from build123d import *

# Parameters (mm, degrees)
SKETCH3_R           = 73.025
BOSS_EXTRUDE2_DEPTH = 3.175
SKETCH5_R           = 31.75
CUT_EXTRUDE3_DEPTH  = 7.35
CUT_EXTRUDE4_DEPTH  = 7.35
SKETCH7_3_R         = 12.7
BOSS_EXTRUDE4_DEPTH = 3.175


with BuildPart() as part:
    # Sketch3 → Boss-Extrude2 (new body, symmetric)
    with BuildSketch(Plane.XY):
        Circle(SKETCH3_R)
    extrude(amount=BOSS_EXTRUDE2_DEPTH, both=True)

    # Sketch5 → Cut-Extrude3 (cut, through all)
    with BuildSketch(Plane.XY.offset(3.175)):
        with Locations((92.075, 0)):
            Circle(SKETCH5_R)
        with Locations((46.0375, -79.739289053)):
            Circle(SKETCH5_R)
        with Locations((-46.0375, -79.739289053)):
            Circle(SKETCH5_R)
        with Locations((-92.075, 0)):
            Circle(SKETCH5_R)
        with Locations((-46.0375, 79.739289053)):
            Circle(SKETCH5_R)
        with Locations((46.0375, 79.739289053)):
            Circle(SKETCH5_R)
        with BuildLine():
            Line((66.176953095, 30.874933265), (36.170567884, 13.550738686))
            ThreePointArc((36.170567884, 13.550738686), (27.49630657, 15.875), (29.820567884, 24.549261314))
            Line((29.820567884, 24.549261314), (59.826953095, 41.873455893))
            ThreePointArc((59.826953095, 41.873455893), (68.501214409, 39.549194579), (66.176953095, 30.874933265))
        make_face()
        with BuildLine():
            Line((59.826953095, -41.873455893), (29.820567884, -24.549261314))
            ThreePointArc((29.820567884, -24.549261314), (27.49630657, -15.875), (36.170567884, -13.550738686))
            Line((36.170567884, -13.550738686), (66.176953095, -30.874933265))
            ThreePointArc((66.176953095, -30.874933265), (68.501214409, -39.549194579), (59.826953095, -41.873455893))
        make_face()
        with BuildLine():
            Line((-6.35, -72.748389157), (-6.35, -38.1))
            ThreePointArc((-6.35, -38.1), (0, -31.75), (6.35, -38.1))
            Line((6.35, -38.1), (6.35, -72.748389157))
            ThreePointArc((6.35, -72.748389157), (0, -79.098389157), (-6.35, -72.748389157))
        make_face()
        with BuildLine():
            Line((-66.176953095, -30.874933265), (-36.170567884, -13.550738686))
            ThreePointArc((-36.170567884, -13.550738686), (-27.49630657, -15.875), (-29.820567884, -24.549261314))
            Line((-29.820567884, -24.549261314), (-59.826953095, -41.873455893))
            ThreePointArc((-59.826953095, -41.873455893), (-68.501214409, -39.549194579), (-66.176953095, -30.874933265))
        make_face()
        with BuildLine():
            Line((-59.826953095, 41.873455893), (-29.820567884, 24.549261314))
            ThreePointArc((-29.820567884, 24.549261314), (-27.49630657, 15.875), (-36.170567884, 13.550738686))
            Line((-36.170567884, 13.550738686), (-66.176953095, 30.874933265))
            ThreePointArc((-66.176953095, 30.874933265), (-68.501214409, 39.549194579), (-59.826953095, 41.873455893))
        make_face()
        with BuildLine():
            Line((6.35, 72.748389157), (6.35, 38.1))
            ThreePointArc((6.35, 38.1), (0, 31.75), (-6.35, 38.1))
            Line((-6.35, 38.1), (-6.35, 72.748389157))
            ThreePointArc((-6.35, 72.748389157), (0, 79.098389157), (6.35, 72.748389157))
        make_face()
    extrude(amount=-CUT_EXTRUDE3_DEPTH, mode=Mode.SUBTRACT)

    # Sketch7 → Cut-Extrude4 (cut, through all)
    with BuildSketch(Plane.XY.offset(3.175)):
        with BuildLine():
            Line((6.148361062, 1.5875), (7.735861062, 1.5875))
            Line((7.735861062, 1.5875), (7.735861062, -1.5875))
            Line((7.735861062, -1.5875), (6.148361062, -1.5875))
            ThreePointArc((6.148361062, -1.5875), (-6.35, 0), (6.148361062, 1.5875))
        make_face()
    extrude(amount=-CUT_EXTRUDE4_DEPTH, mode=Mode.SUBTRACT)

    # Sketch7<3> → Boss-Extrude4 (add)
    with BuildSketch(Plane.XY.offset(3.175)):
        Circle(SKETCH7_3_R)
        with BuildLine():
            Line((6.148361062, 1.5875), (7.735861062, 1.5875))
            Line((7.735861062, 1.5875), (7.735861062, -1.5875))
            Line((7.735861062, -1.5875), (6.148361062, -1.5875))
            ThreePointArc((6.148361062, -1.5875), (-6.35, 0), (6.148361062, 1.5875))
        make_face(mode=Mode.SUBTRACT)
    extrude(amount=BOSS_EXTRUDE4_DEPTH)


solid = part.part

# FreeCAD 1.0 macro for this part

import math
import FreeCAD as App
import Part
import Sketcher
Q = App.Units.Quantity

doc = App.newDocument("Part")
params = doc.addObject("Spreadsheet::Sheet", "Params")
for row, (alias, value) in enumerate([
    ("sketch1_diameter", "5.75 in"),
    ("pad1_length", "0.25 in"),
    ("sketch2_diameter", "2.5 in"),
    ("sketch2_radius", "0.25 in"),
    ("sketch3_radius", "0.25 in"),
    ("sketch3_width", "0.0625 in"),
    ("sketch3_height", "0.125 in"),
    ("sketch4_diameter", "1 in"),
    ("sketch4_radius", "0.25 in"),
    ("sketch4_width", "0.0625 in"),
    ("sketch4_height", "0.125 in"),
    ("pad2_length", "0.125 in"),
], start=1):
    params.set(f"A{row}", alias)
    params.set(f"B{row}", "=" + value)
    params.setAlias(f"B{row}", alias)

body = doc.addObject("PartDesign::Body", "Body")

# Sketch on XY plane
sketch1 = doc.addObject("Sketcher::SketchObject", "Sketch")
body.addObject(sketch1)
sketch1.AttachmentSupport = (doc.XY_Plane, [""])
sketch1.MapMode = "FlatFace"
sketch1.addGeometry(Part.Circle(App.Vector(0, 0, 0), App.Vector(0, 0, 1), 73), False)
sketch1.addConstraint(Sketcher.Constraint("Coincident", 0, 3, -1, 1))
sketch1.addConstraint(Sketcher.Constraint("Diameter", 0, Q("5.75 in")))
sketch1.setExpression("Constraints[1]", "Params.sketch1_diameter")
pad1 = doc.addObject("PartDesign::Pad", "Pad")
body.addObject(pad1)
pad1.Profile = sketch1
pad1.setExpression("Length", "Params.pad1_length")
pad1.Midplane = True

# Sketch on XY plane
sketch2 = doc.addObject("Sketcher::SketchObject", "Sketch001")
body.addObject(sketch2)
sketch2.AttachmentSupport = (doc.XY_Plane, [""])
sketch2.MapMode = "FlatFace"
sketch2.AttachmentOffset = App.Placement(App.Vector(0, 0, 0.125 * 25.4), App.Rotation())
sketch2.addGeometry(Part.Circle(App.Vector(92, 0, 0), App.Vector(0, 0, 1), 32), False)
sketch2.addGeometry(Part.Circle(App.Vector(46, -80, 0), App.Vector(0, 0, 1), 32), False)
sketch2.addGeometry(Part.Circle(App.Vector(-46, -80, 0), App.Vector(0, 0, 1), 32), False)
sketch2.addGeometry(Part.Circle(App.Vector(-92, 0, 0), App.Vector(0, 0, 1), 32), False)
sketch2.addGeometry(Part.Circle(App.Vector(-46, 80, 0), App.Vector(0, 0, 1), 32), False)
sketch2.addGeometry(Part.Circle(App.Vector(46, 80, 0), App.Vector(0, 0, 1), 32), False)
sketch2.addGeometry(Part.LineSegment(App.Vector(36, 14, 0), App.Vector(66, 31, 0)), False)
sketch2.addGeometry(Part.ArcOfCircle(Part.Circle(App.Vector(63, 36, 0), App.Vector(0, 0, 1), 6), math.radians(-60), math.radians(120)), False)
sketch2.addGeometry(Part.LineSegment(App.Vector(60, 42, 0), App.Vector(30, 25, 0)), False)
sketch2.addGeometry(Part.ArcOfCircle(Part.Circle(App.Vector(33, 19, 0), App.Vector(0, 0, 1), 6), math.radians(120), math.radians(300)), False)
sketch2.addGeometry(Part.LineSegment(App.Vector(30, -25, 0), App.Vector(60, -42, 0)), False)
sketch2.addGeometry(Part.ArcOfCircle(Part.Circle(App.Vector(63, -36, 0), App.Vector(0, 0, 1), 6), math.radians(-120), math.radians(60)), False)
sketch2.addGeometry(Part.LineSegment(App.Vector(66, -31, 0), App.Vector(36, -14, 0)), False)
sketch2.addGeometry(Part.ArcOfCircle(Part.Circle(App.Vector(33, -19, 0), App.Vector(0, 0, 1), 6), math.radians(60), math.radians(240)), False)
sketch2.addGeometry(Part.LineSegment(App.Vector(-6, -38, 0), App.Vector(-6, -73, 0)), False)
sketch2.addGeometry(Part.ArcOfCircle(Part.Circle(App.Vector(0, -73, 0), App.Vector(0, 0, 1), 6), math.radians(180), math.radians(360)), False)
sketch2.addGeometry(Part.LineSegment(App.Vector(6, -73, 0), App.Vector(6, -38, 0)), False)
sketch2.addGeometry(Part.ArcOfCircle(Part.Circle(App.Vector(0, -38, 0), App.Vector(0, 0, 1), 6), math.radians(0), math.radians(180)), False)
sketch2.addGeometry(Part.LineSegment(App.Vector(-36, -14, 0), App.Vector(-66, -31, 0)), False)
sketch2.addGeometry(Part.ArcOfCircle(Part.Circle(App.Vector(-63, -36, 0), App.Vector(0, 0, 1), 6), math.radians(120), math.radians(300)), False)
sketch2.addGeometry(Part.LineSegment(App.Vector(-60, -42, 0), App.Vector(-30, -25, 0)), False)
sketch2.addGeometry(Part.ArcOfCircle(Part.Circle(App.Vector(-33, -19, 0), App.Vector(0, 0, 1), 6), math.radians(-60), math.radians(120)), False)
sketch2.addGeometry(Part.LineSegment(App.Vector(-30, 25, 0), App.Vector(-60, 42, 0)), False)
sketch2.addGeometry(Part.ArcOfCircle(Part.Circle(App.Vector(-63, 36, 0), App.Vector(0, 0, 1), 6), math.radians(60), math.radians(240)), False)
sketch2.addGeometry(Part.LineSegment(App.Vector(-66, 31, 0), App.Vector(-36, 14, 0)), False)
sketch2.addGeometry(Part.ArcOfCircle(Part.Circle(App.Vector(-33, 19, 0), App.Vector(0, 0, 1), 6), math.radians(-120), math.radians(60)), False)
sketch2.addGeometry(Part.LineSegment(App.Vector(6, 38, 0), App.Vector(6, 73, 0)), False)
sketch2.addGeometry(Part.ArcOfCircle(Part.Circle(App.Vector(0, 73, 0), App.Vector(0, 0, 1), 6), math.radians(0), math.radians(180)), False)
sketch2.addGeometry(Part.LineSegment(App.Vector(-6, 73, 0), App.Vector(-6, 38, 0)), False)
sketch2.addGeometry(Part.ArcOfCircle(Part.Circle(App.Vector(0, 38, 0), App.Vector(0, 0, 1), 6), math.radians(180), math.radians(360)), False)
sketch2.addConstraint(Sketcher.Constraint("Tangent", 6, 2, 7, 1))
sketch2.addConstraint(Sketcher.Constraint("Tangent", 7, 2, 8, 1))
sketch2.addConstraint(Sketcher.Constraint("Tangent", 8, 2, 9, 1))
sketch2.addConstraint(Sketcher.Constraint("Tangent", 9, 2, 6, 1))
sketch2.addConstraint(Sketcher.Constraint("Tangent", 10, 2, 11, 1))
sketch2.addConstraint(Sketcher.Constraint("Tangent", 11, 2, 12, 1))
sketch2.addConstraint(Sketcher.Constraint("Tangent", 12, 2, 13, 1))
sketch2.addConstraint(Sketcher.Constraint("Tangent", 13, 2, 10, 1))
sketch2.addConstraint(Sketcher.Constraint("Tangent", 14, 2, 15, 1))
sketch2.addConstraint(Sketcher.Constraint("Tangent", 15, 2, 16, 1))
sketch2.addConstraint(Sketcher.Constraint("Tangent", 16, 2, 17, 1))
sketch2.addConstraint(Sketcher.Constraint("Tangent", 17, 2, 14, 1))
sketch2.addConstraint(Sketcher.Constraint("Tangent", 18, 2, 19, 1))
sketch2.addConstraint(Sketcher.Constraint("Tangent", 19, 2, 20, 1))
sketch2.addConstraint(Sketcher.Constraint("Tangent", 20, 2, 21, 1))
sketch2.addConstraint(Sketcher.Constraint("Tangent", 21, 2, 18, 1))
sketch2.addConstraint(Sketcher.Constraint("Tangent", 22, 2, 23, 1))
sketch2.addConstraint(Sketcher.Constraint("Tangent", 23, 2, 24, 1))
sketch2.addConstraint(Sketcher.Constraint("Tangent", 24, 2, 25, 1))
sketch2.addConstraint(Sketcher.Constraint("Tangent", 25, 2, 22, 1))
sketch2.addConstraint(Sketcher.Constraint("Tangent", 26, 2, 27, 1))
sketch2.addConstraint(Sketcher.Constraint("Tangent", 27, 2, 28, 1))
sketch2.addConstraint(Sketcher.Constraint("Tangent", 28, 2, 29, 1))
sketch2.addConstraint(Sketcher.Constraint("Tangent", 29, 2, 26, 1))
sketch2.addConstraint(Sketcher.Constraint("Vertical", 14))
sketch2.addConstraint(Sketcher.Constraint("Vertical", 16))
sketch2.addConstraint(Sketcher.Constraint("Vertical", 26))
sketch2.addConstraint(Sketcher.Constraint("Vertical", 28))
sketch2.addConstraint(Sketcher.Constraint("Equal", 0, 1))
sketch2.addConstraint(Sketcher.Constraint("Equal", 1, 2))
sketch2.addConstraint(Sketcher.Constraint("Equal", 2, 3))
sketch2.addConstraint(Sketcher.Constraint("Equal", 3, 4))
sketch2.addConstraint(Sketcher.Constraint("Equal", 4, 5))
sketch2.addConstraint(Sketcher.Constraint("Equal", 7, 9))
sketch2.addConstraint(Sketcher.Constraint("Equal", 9, 11))
sketch2.addConstraint(Sketcher.Constraint("Equal", 11, 13))
sketch2.addConstraint(Sketcher.Constraint("Equal", 13, 15))
sketch2.addConstraint(Sketcher.Constraint("Equal", 17, 19))
sketch2.addConstraint(Sketcher.Constraint("Equal", 19, 21))
sketch2.addConstraint(Sketcher.Constraint("Equal", 21, 23))
sketch2.addConstraint(Sketcher.Constraint("Equal", 23, 25))
sketch2.addConstraint(Sketcher.Constraint("Equal", 25, 27))
sketch2.addConstraint(Sketcher.Constraint("Symmetric", 0, 3, 3, 3, -1, 1))
sketch2.addConstraint(Sketcher.Constraint("Symmetric", 1, 3, 4, 3, -1, 1))
sketch2.addConstraint(Sketcher.Constraint("Symmetric", 2, 3, 5, 3, -1, 1))
sketch2.addConstraint(Sketcher.Constraint("Symmetric", 7, 3, 19, 3, -1, 1))
sketch2.addConstraint(Sketcher.Constraint("Symmetric", 9, 3, 21, 3, -1, 1))
sketch2.addConstraint(Sketcher.Constraint("Symmetric", 11, 3, 23, 3, -1, 1))
sketch2.addConstraint(Sketcher.Constraint("Symmetric", 13, 3, 25, 3, -1, 1))
sketch2.addConstraint(Sketcher.Constraint("Symmetric", 15, 3, 27, 3, -1, 1))
sketch2.addConstraint(Sketcher.Constraint("Symmetric", 1, 3, 2, 3, -2))
sketch2.addConstraint(Sketcher.Constraint("Symmetric", 11, 3, 19, 3, -2))
sketch2.addConstraint(Sketcher.Constraint("Symmetric", 13, 3, 21, 3, -2))
sketch2.addConstraint(Sketcher.Constraint("Symmetric", 17, 3, 29, 3, -1))
sketch2.addConstraint(Sketcher.Constraint("PointOnObject", 0, 3, -1))
sketch2.addConstraint(Sketcher.Constraint("Diameter", 0, Q("2.5 in")))
sketch2.addConstraint(Sketcher.Constraint("Radius", 7, Q("0.25 in")))
sketch2.addConstraint(Sketcher.Constraint("Angle", 6, Q("30 deg")))
sketch2.addConstraint(Sketcher.Constraint("DistanceY", 17, 3, -1, 1, Q("1.5 in")))
sketch2.addConstraint(Sketcher.Constraint("DistanceY", 13, 3, 9, 3, Q("1.5 in")))
sketch2.addConstraint(Sketcher.Constraint("DistanceX", 3, 3, 0, 3, Q("7.25 in")))
sketch2.addConstraint(Sketcher.Constraint("DistanceX", -1, 1, 1, 3, Q("1.8125 in")))
sketch2.addConstraint(Sketcher.Constraint("DistanceY", 14, 2, 14, 1, Q("34.648389 mm")))
sketch2.addConstraint(Sketcher.Constraint("DistanceY", 1, 3, 15, 3, Q("6.9909 mm")))
sketch2.addConstraint(Sketcher.Constraint("Distance", 6, Q("34.648389 mm")))
sketch2.addConstraint(Sketcher.Constraint("DistanceX", 19, 3, 13, 3, Q("95.997521 mm")))
sketch2.setExpression("Constraints[55]", "Params.sketch2_diameter")
sketch2.setExpression("Constraints[56]", "Params.sketch2_radius")
pocket1 = doc.addObject("PartDesign::Pocket", "Pocket")
body.addObject(pocket1)
pocket1.Profile = sketch2
pocket1.Type = "ThroughAll"

# Sketch on XY plane
sketch3 = doc.addObject("Sketcher::SketchObject", "Sketch002")
body.addObject(sketch3)
sketch3.AttachmentSupport = (doc.XY_Plane, [""])
sketch3.MapMode = "FlatFace"
sketch3.AttachmentOffset = App.Placement(App.Vector(0, 0, 0.125 * 25.4), App.Rotation())
sketch3.addGeometry(Part.LineSegment(App.Vector(7.7, 1.6, 0), App.Vector(6.1, 1.6, 0)), False)
sketch3.addGeometry(Part.ArcOfCircle(Part.Circle(App.Vector(0, 0, 0), App.Vector(0, 0, 1), 6.3), math.radians(14), math.radians(346)), False)
sketch3.addGeometry(Part.LineSegment(App.Vector(6.1, -1.6, 0), App.Vector(7.7, -1.6, 0)), False)
sketch3.addGeometry(Part.LineSegment(App.Vector(7.7, -1.6, 0), App.Vector(7.7, 1.6, 0)), False)
sketch3.addConstraint(Sketcher.Constraint("Coincident", 0, 2, 1, 1))
sketch3.addConstraint(Sketcher.Constraint("Coincident", 1, 2, 2, 1))
sketch3.addConstraint(Sketcher.Constraint("Coincident", 2, 2, 3, 1))
sketch3.addConstraint(Sketcher.Constraint("Coincident", 3, 2, 0, 1))
sketch3.addConstraint(Sketcher.Constraint("Horizontal", 0))
sketch3.addConstraint(Sketcher.Constraint("Horizontal", 2))
sketch3.addConstraint(Sketcher.Constraint("Vertical", 3))
sketch3.addConstraint(Sketcher.Constraint("Coincident", 1, 3, -1, 1))
sketch3.addConstraint(Sketcher.Constraint("Vertical", 0, 2, 1, 2))
sketch3.addConstraint(Sketcher.Constraint("Radius", 1, Q("0.25 in")))
sketch3.addConstraint(Sketcher.Constraint("DistanceX", 0, 2, 0, 1, Q("0.0625 in")))
sketch3.addConstraint(Sketcher.Constraint("DistanceY", 3, 1, 3, 2, Q("0.125 in")))
sketch3.setExpression("Constraints[9]", "Params.sketch3_radius")
sketch3.setExpression("Constraints[10]", "Params.sketch3_width")
sketch3.setExpression("Constraints[11]", "Params.sketch3_height")
pocket2 = doc.addObject("PartDesign::Pocket", "Pocket001")
body.addObject(pocket2)
pocket2.Profile = sketch3
pocket2.Type = "ThroughAll"

# Sketch on XY plane
sketch4 = doc.addObject("Sketcher::SketchObject", "Sketch003")
body.addObject(sketch4)
sketch4.AttachmentSupport = (doc.XY_Plane, [""])
sketch4.MapMode = "FlatFace"
sketch4.AttachmentOffset = App.Placement(App.Vector(0, 0, 0.125 * 25.4), App.Rotation())
sketch4.addGeometry(Part.Circle(App.Vector(0, 0, 0), App.Vector(0, 0, 1), 12.7), False)
sketch4.addGeometry(Part.ArcOfCircle(Part.Circle(App.Vector(0, 0, 0), App.Vector(0, 0, 1), 6.3), math.radians(14), math.radians(346)), False)
sketch4.addGeometry(Part.LineSegment(App.Vector(6.1, 1.6, 0), App.Vector(7.7, 1.6, 0)), False)
sketch4.addGeometry(Part.LineSegment(App.Vector(7.7, 1.6, 0), App.Vector(7.7, -1.6, 0)), False)
sketch4.addGeometry(Part.LineSegment(App.Vector(7.7, -1.6, 0), App.Vector(6.1, -1.6, 0)), False)
sketch4.addConstraint(Sketcher.Constraint("Coincident", 1, 1, 2, 1))
sketch4.addConstraint(Sketcher.Constraint("Coincident", 2, 2, 3, 1))
sketch4.addConstraint(Sketcher.Constraint("Coincident", 3, 2, 4, 1))
sketch4.addConstraint(Sketcher.Constraint("Coincident", 4, 2, 1, 2))
sketch4.addConstraint(Sketcher.Constraint("Horizontal", 2))
sketch4.addConstraint(Sketcher.Constraint("Vertical", 3))
sketch4.addConstraint(Sketcher.Constraint("Horizontal", 4))
sketch4.addConstraint(Sketcher.Constraint("Coincident", 0, 3, -1, 1))
sketch4.addConstraint(Sketcher.Constraint("Coincident", 1, 3, -1, 1))
sketch4.addConstraint(Sketcher.Constraint("Vertical", 1, 1, 4, 2))
sketch4.addConstraint(Sketcher.Constraint("Diameter", 0, Q("1 in")))
sketch4.addConstraint(Sketcher.Constraint("Radius", 1, Q("0.25 in")))
sketch4.addConstraint(Sketcher.Constraint("DistanceX", 2, 1, 2, 2, Q("0.0625 in")))
sketch4.addConstraint(Sketcher.Constraint("DistanceY", 3, 2, 3, 1, Q("0.125 in")))
sketch4.setExpression("Constraints[10]", "Params.sketch4_diameter")
sketch4.setExpression("Constraints[11]", "Params.sketch4_radius")
sketch4.setExpression("Constraints[12]", "Params.sketch4_width")
sketch4.setExpression("Constraints[13]", "Params.sketch4_height")
pad2 = doc.addObject("PartDesign::Pad", "Pad001")
body.addObject(pad2)
pad2.Profile = sketch4
pad2.setExpression("Length", "Params.pad2_length")

doc.recompute()
